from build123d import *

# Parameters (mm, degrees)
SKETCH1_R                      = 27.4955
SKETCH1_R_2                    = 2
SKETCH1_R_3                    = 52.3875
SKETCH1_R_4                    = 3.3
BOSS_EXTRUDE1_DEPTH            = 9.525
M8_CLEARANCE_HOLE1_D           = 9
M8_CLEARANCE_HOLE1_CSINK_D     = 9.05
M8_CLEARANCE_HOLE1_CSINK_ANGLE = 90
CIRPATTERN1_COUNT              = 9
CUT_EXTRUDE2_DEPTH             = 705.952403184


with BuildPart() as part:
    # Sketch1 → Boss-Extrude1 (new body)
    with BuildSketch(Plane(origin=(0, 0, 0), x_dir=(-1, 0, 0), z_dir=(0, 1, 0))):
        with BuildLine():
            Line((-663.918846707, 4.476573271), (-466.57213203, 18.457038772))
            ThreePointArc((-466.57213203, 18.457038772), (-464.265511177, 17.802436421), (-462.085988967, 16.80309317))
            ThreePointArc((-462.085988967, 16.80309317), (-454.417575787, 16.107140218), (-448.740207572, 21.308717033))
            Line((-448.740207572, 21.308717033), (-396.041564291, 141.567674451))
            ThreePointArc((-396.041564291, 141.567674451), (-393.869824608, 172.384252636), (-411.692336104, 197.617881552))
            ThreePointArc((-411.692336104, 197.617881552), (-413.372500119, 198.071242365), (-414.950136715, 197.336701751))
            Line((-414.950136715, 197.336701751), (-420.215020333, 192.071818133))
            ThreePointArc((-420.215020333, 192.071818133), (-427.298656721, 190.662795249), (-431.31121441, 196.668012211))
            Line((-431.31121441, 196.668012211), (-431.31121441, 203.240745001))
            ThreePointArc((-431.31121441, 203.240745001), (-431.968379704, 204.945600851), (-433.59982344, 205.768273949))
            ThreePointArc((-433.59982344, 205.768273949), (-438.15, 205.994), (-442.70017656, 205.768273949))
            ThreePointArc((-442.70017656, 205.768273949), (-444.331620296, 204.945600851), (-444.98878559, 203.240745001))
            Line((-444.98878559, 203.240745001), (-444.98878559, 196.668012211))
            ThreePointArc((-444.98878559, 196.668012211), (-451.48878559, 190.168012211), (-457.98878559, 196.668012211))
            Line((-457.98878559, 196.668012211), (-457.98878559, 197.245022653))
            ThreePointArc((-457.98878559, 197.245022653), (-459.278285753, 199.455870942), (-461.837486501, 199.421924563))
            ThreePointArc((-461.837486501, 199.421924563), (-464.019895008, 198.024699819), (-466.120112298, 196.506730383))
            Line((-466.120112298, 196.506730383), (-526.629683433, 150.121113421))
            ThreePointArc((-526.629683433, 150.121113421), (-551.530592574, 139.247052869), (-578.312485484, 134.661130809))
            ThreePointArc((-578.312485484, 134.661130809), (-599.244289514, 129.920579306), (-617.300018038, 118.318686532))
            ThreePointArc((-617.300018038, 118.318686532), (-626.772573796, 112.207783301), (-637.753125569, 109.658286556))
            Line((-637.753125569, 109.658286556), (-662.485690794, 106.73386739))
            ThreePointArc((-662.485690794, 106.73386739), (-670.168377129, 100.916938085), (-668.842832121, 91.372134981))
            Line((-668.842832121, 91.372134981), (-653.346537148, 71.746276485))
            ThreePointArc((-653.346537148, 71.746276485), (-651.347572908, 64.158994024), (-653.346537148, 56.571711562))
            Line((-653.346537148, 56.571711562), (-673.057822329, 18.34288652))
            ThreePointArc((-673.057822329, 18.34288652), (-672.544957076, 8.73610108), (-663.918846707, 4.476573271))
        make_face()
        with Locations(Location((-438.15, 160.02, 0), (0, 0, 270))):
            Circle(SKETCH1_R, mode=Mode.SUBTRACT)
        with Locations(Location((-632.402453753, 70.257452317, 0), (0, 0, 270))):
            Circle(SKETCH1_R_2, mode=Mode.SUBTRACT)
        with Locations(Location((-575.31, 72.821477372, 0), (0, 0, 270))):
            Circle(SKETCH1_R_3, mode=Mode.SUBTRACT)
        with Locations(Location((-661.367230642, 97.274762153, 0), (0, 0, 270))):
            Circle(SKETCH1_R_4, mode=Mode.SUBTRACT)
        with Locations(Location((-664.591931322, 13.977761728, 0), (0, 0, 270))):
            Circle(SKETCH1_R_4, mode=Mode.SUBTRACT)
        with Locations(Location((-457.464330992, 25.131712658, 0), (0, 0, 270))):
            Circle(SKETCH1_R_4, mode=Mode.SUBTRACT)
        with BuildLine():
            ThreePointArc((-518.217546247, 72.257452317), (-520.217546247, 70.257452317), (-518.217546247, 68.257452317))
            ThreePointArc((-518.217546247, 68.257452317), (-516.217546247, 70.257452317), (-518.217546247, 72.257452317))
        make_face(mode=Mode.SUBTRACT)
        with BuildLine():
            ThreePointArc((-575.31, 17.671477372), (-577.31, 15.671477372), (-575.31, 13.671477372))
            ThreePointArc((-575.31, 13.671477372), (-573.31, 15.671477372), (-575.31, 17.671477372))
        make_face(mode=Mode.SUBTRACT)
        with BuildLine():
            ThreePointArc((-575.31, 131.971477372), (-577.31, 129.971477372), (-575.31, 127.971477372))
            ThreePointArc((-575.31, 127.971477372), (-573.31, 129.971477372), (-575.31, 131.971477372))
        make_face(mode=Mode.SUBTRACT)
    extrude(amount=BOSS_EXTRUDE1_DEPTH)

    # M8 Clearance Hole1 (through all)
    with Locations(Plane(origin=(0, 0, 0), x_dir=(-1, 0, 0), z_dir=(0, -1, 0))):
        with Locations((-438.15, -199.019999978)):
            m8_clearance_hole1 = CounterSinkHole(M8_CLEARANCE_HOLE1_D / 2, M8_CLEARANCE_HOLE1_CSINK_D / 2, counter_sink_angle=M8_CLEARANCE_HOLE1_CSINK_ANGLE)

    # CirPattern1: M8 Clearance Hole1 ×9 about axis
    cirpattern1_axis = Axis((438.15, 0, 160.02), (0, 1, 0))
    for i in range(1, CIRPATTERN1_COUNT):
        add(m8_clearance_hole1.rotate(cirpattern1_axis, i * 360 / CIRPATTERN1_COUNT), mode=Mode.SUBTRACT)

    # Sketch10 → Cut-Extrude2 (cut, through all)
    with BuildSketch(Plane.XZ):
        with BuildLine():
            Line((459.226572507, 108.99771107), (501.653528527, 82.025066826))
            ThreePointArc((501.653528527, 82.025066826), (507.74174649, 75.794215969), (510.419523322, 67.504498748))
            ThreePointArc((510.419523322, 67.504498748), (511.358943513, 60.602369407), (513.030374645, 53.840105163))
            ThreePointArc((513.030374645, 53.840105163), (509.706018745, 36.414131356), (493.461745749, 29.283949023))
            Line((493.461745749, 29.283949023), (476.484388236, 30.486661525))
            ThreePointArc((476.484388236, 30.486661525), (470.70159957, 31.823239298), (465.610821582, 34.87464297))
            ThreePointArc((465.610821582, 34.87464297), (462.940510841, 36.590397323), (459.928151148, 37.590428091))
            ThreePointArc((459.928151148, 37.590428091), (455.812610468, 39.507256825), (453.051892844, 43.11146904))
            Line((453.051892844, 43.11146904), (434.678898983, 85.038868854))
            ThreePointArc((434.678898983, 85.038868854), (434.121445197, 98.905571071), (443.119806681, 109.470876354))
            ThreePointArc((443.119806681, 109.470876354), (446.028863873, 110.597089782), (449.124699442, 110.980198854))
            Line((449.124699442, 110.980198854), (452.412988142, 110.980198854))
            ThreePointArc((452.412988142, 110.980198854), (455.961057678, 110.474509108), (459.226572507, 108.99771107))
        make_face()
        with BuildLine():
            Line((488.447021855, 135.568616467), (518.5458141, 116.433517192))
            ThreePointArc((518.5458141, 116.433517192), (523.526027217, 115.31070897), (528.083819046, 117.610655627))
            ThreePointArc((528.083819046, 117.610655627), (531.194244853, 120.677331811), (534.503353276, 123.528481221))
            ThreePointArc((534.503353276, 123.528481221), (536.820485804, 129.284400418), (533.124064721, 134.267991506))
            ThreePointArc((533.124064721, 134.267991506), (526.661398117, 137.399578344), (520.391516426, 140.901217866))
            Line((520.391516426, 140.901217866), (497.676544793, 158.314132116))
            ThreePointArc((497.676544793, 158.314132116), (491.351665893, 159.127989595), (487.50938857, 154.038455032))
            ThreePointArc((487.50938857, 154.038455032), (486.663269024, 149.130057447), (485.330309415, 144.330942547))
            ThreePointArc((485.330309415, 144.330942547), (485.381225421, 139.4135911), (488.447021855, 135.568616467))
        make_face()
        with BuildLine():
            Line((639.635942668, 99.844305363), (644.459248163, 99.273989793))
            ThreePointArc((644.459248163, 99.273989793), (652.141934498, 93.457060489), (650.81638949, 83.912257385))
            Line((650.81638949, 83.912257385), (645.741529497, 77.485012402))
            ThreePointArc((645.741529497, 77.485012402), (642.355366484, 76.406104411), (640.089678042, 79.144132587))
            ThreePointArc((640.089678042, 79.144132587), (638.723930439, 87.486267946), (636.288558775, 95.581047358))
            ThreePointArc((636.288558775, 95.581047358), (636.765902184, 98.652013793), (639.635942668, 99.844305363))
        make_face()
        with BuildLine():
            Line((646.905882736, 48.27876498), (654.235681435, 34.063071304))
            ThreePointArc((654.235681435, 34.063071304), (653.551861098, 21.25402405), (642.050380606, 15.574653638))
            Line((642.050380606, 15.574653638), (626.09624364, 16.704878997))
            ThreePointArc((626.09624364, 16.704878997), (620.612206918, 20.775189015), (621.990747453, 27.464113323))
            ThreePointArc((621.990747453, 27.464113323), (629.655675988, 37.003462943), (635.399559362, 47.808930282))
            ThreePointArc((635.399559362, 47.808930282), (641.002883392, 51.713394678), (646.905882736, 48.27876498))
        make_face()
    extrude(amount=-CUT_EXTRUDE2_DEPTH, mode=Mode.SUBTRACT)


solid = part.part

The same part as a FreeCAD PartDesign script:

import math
import FreeCAD as App
import Part
import Sketcher
Q = App.Units.Quantity

doc = App.newDocument("Part")
body = doc.addObject("PartDesign::Body", "Body")

# Sketch on XZ plane
sketch1 = body.newObject("Sketcher::SketchObject", "Sketch")
sketch1.AttachmentSupport = (doc.getObject("XZ_Plane"), [""])
sketch1.MapMode = "FlatFace"
sketch1.addGeometry([
    Part.LineSegment(App.Vector(663.918847, 4.476573, 0), App.Vector(466.572132, 18.457039, 0)),  # 0
    Part.ArcOfCircle(Part.Circle(App.Vector(469.67802, 3.12161, 0), App.Vector(0, 0, 1), 15.646787), math.radians(101.44926), math.radians(119.026457)),  # 1
    Part.ArcOfCircle(Part.Circle(App.Vector(457.464331, 25.131713, 0), App.Vector(0, 0, 1), 9.525), math.radians(-156.3365), math.radians(-60.973543)),  # 2
    Part.LineSegment(App.Vector(448.740208, 21.308717, 0), App.Vector(396.041564, 141.567674, 0)),  # 3
    Part.ArcOfCircle(Part.Circle(App.Vector(438.15, 160.02, 0), App.Vector(0, 0, 1), 45.974), math.radians(125.134086), math.radians(203.6635)),  # 4
    Part.ArcOfCircle(Part.Circle(App.Vector(413.154085, 195.540651, 0), App.Vector(0, 0, 1), 2.54), math.radians(45), math.radians(125.134086)),  # 5
    Part.LineSegment(App.Vector(414.950137, 197.336702, 0), App.Vector(420.21502, 192.071818, 0)),  # 6
    Part.ArcOfCircle(Part.Circle(App.Vector(424.811214, 196.668012, 0), App.Vector(0, 0, 1), 6.5), math.radians(-135), math.radians(0)),  # 7
    Part.LineSegment(App.Vector(431.311214, 196.668012, 0), App.Vector(431.311214, 203.240745, 0)),  # 8
    Part.ArcOfCircle(Part.Circle(App.Vector(433.851214, 203.240745, 0), App.Vector(0, 0, 1), 2.54), math.radians(95.680024), math.radians(180)),  # 9
    Part.ArcOfCircle(Part.Circle(App.Vector(438.15, 160.02, 0), App.Vector(0, 0, 1), 45.974), math.radians(84.319976), math.radians(95.680024)),  # 10
    Part.ArcOfCircle(Part.Circle(App.Vector(442.448786, 203.240745, 0), App.Vector(0, 0, 1), 2.54), math.radians(0), math.radians(84.319976)),  # 11
    Part.LineSegment(App.Vector(444.988786, 203.240745, 0), App.Vector(444.988786, 196.668012, 0)),  # 12
    Part.ArcOfCircle(Part.Circle(App.Vector(451.488786, 196.668012, 0), App.Vector(0, 0, 1), 6.5), math.radians(180), math.radians(360)),  # 13
    Part.LineSegment(App.Vector(457.988786, 196.668012, 0), App.Vector(457.988786, 197.245023, 0)),  # 14
    Part.ArcOfCircle(Part.Circle(App.Vector(460.528786, 197.245023, 0), App.Vector(0, 0, 1), 2.54), math.radians(58.98673), math.radians(180)),  # 15
    Part.ArcOfCircle(Part.Circle(App.Vector(438.15, 160.02, 0), App.Vector(0, 0, 1), 45.974), math.radians(52.526835), math.radians(58.98673)),  # 16
    Part.LineSegment(App.Vector(466.120112, 196.50673, 0), App.Vector(526.629683, 150.121113, 0)),  # 17
    Part.ArcOfCircle(Part.Circle(App.Vector(583.767602, 247.015541, 0), App.Vector(0, 0, 1), 112.486763), math.radians(-120.527534), math.radians(-92.779685)),  # 18
    Part.ArcOfCircle(Part.Circle(App.Vector(575.31, 72.821477, 0), App.Vector(0, 0, 1), 61.9125), math.radians(47.295646), math.radians(87.220315)),  # 19
    Part.ArcOfCircle(Part.Circle(App.Vector(639.583712, 142.463612, 0), App.Vector(0, 0, 1), 32.856361), math.radians(-132.704354), math.radians(-93.193878)),  # 20
    Part.LineSegment(App.Vector(637.753126, 109.658287, 0), App.Vector(662.485691, 106.733867, 0)),  # 21
    Part.ArcOfCircle(Part.Circle(App.Vector(661.367231, 97.274762, 0), App.Vector(0, 0, 1), 9.525), math.radians(-38.294113), math.radians(83.256563)),  # 22
    Part.LineSegment(App.Vector(668.842832, 91.372135, 0), App.Vector(653.346537, 71.746276, 0)),  # 23
    Part.ArcOfCircle(Part.Circle(App.Vector(666.746226, 64.158994, 0), App.Vector(0, 0, 1), 15.398653), math.radians(150.480235), math.radians(209.519765)),  # 24
    Part.LineSegment(App.Vector(653.346537, 56.571712, 0), App.Vector(673.057822, 18.342887, 0)),  # 25
    Part.ArcOfCircle(Part.Circle(App.Vector(664.591931, 13.977762, 0), App.Vector(0, 0, 1), 9.525), math.radians(-94.052186), math.radians(27.276227)),  # 26
    Part.Circle(App.Vector(664.591931, 13.977762, 0), App.Vector(0, 0, 1), 3.3),  # 27
    Part.Circle(App.Vector(575.31, 15.671477, 0), App.Vector(0, 0, 1), 2),  # 28
    Part.Circle(App.Vector(632.402454, 70.257452, 0), App.Vector(0, 0, 1), 2),  # 29
    Part.Circle(App.Vector(661.367231, 97.274762, 0), App.Vector(0, 0, 1), 3.3),  # 30
    Part.Circle(App.Vector(575.31, 72.821477, 0), App.Vector(0, 0, 1), 52.3875),  # 31
    Part.Circle(App.Vector(457.464331, 25.131713, 0), App.Vector(0, 0, 1), 3.3),  # 32
    Part.Circle(App.Vector(518.217546, 70.257452, 0), App.Vector(0, 0, 1), 2),  # 33
    Part.Circle(App.Vector(575.31, 129.971477, 0), App.Vector(0, 0, 1), 2),  # 34
    Part.Circle(App.Vector(438.15, 160.02, 0), App.Vector(0, 0, 1), 27.4955),  # 35
], False)
sketch1.addConstraint([
    Sketcher.Constraint("Coincident", 0, 2, 1, 1),
    Sketcher.Constraint("Coincident", 1, 2, 2, 2),
    Sketcher.Constraint("Coincident", 2, 1, 3, 1),
    Sketcher.Constraint("Coincident", 3, 2, 4, 2),
    Sketcher.Constraint("Coincident", 4, 1, 5, 2),
    Sketcher.Constraint("Coincident", 5, 1, 6, 1),
    Sketcher.Constraint("Coincident", 6, 2, 7, 1),
    Sketcher.Constraint("Coincident", 7, 2, 8, 1),
    Sketcher.Constraint("Coincident", 8, 2, 9, 2),
    Sketcher.Constraint("Coincident", 9, 1, 10, 2),
    Sketcher.Constraint("Coincident", 10, 1, 11, 2),
    Sketcher.Constraint("Coincident", 11, 1, 12, 1),
    Sketcher.Constraint("Coincident", 12, 2, 13, 1),
    Sketcher.Constraint("Coincident", 13, 2, 14, 1),
    Sketcher.Constraint("Coincident", 14, 2, 15, 2),
    Sketcher.Constraint("Coincident", 15, 1, 16, 2),
    Sketcher.Constraint("Coincident", 16, 1, 17, 1),
    Sketcher.Constraint("Coincident", 17, 2, 18, 1),
    Sketcher.Constraint("Coincident", 18, 2, 19, 2),
    Sketcher.Constraint("Coincident", 19, 1, 20, 1),
    Sketcher.Constraint("Coincident", 20, 2, 21, 1),
    Sketcher.Constraint("Coincident", 21, 2, 22, 2),
    Sketcher.Constraint("Coincident", 22, 1, 23, 1),
    Sketcher.Constraint("Coincident", 23, 2, 24, 1),
    Sketcher.Constraint("Coincident", 24, 2, 25, 1),
    Sketcher.Constraint("Coincident", 25, 2, 26, 2),
    Sketcher.Constraint("Coincident", 26, 1, 0, 1),
    Sketcher.Constraint("Vertical", 8),
    Sketcher.Constraint("Vertical", 12),
    Sketcher.Constraint("Vertical", 14),
    Sketcher.Constraint("Coincident", 10, 3, 4, 3),
    Sketcher.Constraint("Coincident", 16, 3, 4, 3),
    Sketcher.Constraint("Coincident", 27, 3, 26, 3),
    Sketcher.Constraint("Coincident", 30, 3, 22, 3),
    Sketcher.Constraint("Coincident", 31, 3, 19, 3),
    Sketcher.Constraint("Coincident", 32, 3, 2, 3),
    Sketcher.Constraint("Coincident", 35, 3, 4, 3),
    Sketcher.Constraint("Radius", 5, Q("0.1 in")),
    Sketcher.Constraint("Radius", 9, Q("0.1 in")),
    Sketcher.Constraint("Radius", 11, Q("0.1 in")),
    Sketcher.Constraint("Radius", 15, Q("0.1 in")),
    Sketcher.Constraint("Radius", 4, Q("1.81 in")),
    Sketcher.Constraint("Radius", 10, Q("1.81 in")),
    Sketcher.Constraint("Radius", 16, Q("1.81 in")),
    Sketcher.Constraint("Diameter", 31, Q("4.125 in")),
    Sketcher.Constraint("Diameter", 35, Q("2.165 in")),
    Sketcher.Constraint("Radius", 2, Q("0.375 in")),
    Sketcher.Constraint("Radius", 19, Q("2.4375 in")),
    Sketcher.Constraint("Radius", 22, Q("0.375 in")),
    Sketcher.Constraint("Radius", 26, Q("0.375 in")),
    Sketcher.Constraint("DistanceY", -1, 1, 4, 3, Q("6.3 in")),
    Sketcher.Constraint("DistanceX", 10, 3, 19, 3, Q("5.4 in")),
    Sketcher.Constraint("Diameter", 27, Q("6.6 mm")),
    Sketcher.Constraint("Diameter", 28, Q("4 mm")),
    Sketcher.Constraint("Diameter", 29, Q("4 mm")),
    Sketcher.Constraint("Diameter", 30, Q("6.6 mm")),
    Sketcher.Constraint("Diameter", 32, Q("6.6 mm")),
    Sketcher.Constraint("Diameter", 33, Q("4 mm")),
    Sketcher.Constraint("Diameter", 34, Q("4 mm")),
    Sketcher.Constraint("DistanceX", -1, 1, 4, 3, Q("17.25 in")),
    Sketcher.Constraint("DistanceX", -1, 1, 28, 3, Q("22.65 in")),
    Sketcher.Constraint("DistanceX", -1, 1, 34, 3, Q("22.65 in")),
    Sketcher.Constraint("Radius", 7, Q("6.5 mm")),
    Sketcher.Constraint("Radius", 13, Q("6.5 mm")),
    Sketcher.Constraint("DistanceY", 28, 3, 19, 3, Q("2.25 in")),
    Sketcher.Constraint("DistanceY", 31, 3, 34, 3, Q("2.25 in")),
    Sketcher.Constraint("Radius", 20, Q("32.856361 mm")),
    Sketcher.Constraint("Radius", 1, Q("15.646787 mm")),
    Sketcher.Constraint("Radius", 18, Q("112.486763 mm")),
    Sketcher.Constraint("Radius", 24, Q("15.398653 mm")),
    Sketcher.Constraint("Distance", 0, Q("197.841298 mm")),
    Sketcher.Constraint("DistanceY", 14, 1, 14, 2, Q("0.57701 mm")),
    Sketcher.Constraint("DistanceX", -1, 1, 18, 3, Q("583.767602 mm")),
    Sketcher.Constraint("DistanceY", -1, 1, 5, 1, Q("197.336702 mm")),
    Sketcher.Constraint("DistanceY", 2, 3, 7, 3, Q("171.5363 mm")),
    Sketcher.Constraint("DistanceX", 5, 3, 11, 3, Q("29.2947 mm")),
    Sketcher.Constraint("DistanceY", 20, 3, 13, 3, Q("54.2044 mm")),
    Sketcher.Constraint("DistanceX", 2, 3, 22, 3, Q("203.9029 mm")),
    Sketcher.Constraint("DistanceX", 22, 3, 26, 3, Q("3.224701 mm")),
    Sketcher.Constraint("DistanceY", 26, 3, 22, 3, Q("83.297 mm")),
    Sketcher.Constraint("DistanceX", 2, 3, 0, 2, Q("9.107801 mm")),
    Sketcher.Constraint("DistanceX", 4, 1, 5, 1, Q("3.257801 mm")),
    Sketcher.Constraint("DistanceX", 15, 3, 15, 1, Q("1.308701 mm")),
    Sketcher.Constraint("DistanceY", 14, 2, 15, 1, Q("2.176902 mm")),
    Sketcher.Constraint("DistanceY", 20, 2, 19, 1, Q("8.6604 mm")),
    Sketcher.Constraint("DistanceX", 22, 3, 22, 1, Q("7.475601 mm")),
    Sketcher.Constraint("Distance", 6, Q("7.44567 mm")),
    Sketcher.Constraint("Distance", 21, Q("24.904859 mm")),
    Sketcher.Constraint("Distance", 23, Q("25.006189 mm")),
    Sketcher.Constraint("Distance", 25, Q("43.011369 mm")),
    Sketcher.Constraint("DistanceY", 8, 1, 8, 2, Q("6.572733 mm")),
    Sketcher.Constraint("DistanceY", 12, 2, 12, 1, Q("6.572733 mm")),
    Sketcher.Constraint("DistanceX", -1, 1, 1, 3, Q("469.67802 mm")),
    Sketcher.Constraint("DistanceY", -1, 1, 1, 3, Q("3.12161 mm")),
    Sketcher.Constraint("DistanceX", -1, 1, 2, 3, Q("457.464331 mm")),
    Sketcher.Constraint("DistanceY", -1, 1, 5, 3, Q("195.540651 mm")),
    Sketcher.Constraint("DistanceY", -1, 1, 18, 3, Q("247.015541 mm")),
    Sketcher.Constraint("DistanceX", -1, 1, 20, 3, Q("639.583712 mm")),
    Sketcher.Constraint("DistanceY", -1, 1, 26, 3, Q("13.977762 mm")),
    Sketcher.Constraint("DistanceX", -1, 1, 1, 2, Q("462.085989 mm")),
    Sketcher.Constraint("DistanceX", -1, 1, 6, 2, Q("420.21502 mm")),
    Sketcher.Constraint("DistanceY", -1, 1, 16, 1, Q("196.50673 mm")),
    Sketcher.Constraint("DistanceY", -1, 1, 18, 2, Q("134.661131 mm")),
    Sketcher.Constraint("DistanceX", -1, 1, 21, 2, Q("662.485691 mm")),
    Sketcher.Constraint("DistanceY", -1, 1, 24, 2, Q("56.571712 mm")),
    Sketcher.Constraint("DistanceY", 24, 3, 22, 3, Q("33.115768 mm")),
    Sketcher.Constraint("DistanceY", 24, 3, 29, 3, Q("6.098458 mm")),
    Sketcher.Constraint("DistanceY", 2, 3, 33, 3, Q("45.12574 mm")),
    Sketcher.Constraint("DistanceX", 2, 1, 1, 2, Q("13.345781 mm")),
    Sketcher.Constraint("DistanceX", 3, 2, 5, 3, Q("17.112521 mm")),
    Sketcher.Constraint("DistanceY", 7, 2, 5, 1, Q("0.66869 mm")),
    Sketcher.Constraint("DistanceX", 9, 1, 9, 3, Q("0.251391 mm")),
    Sketcher.Constraint("DistanceX", 11, 3, 10, 1, Q("0.251391 mm")),
    Sketcher.Constraint("DistanceY", 11, 1, 10, 1, Q("2.527529 mm")),
    Sketcher.Constraint("DistanceX", 16, 1, 17, 2, Q("60.509571 mm")),
    Sketcher.Constraint("DistanceX", 29, 3, 20, 2, Q("5.350672 mm")),
    Sketcher.Constraint("DistanceX", 23, 2, 24, 3, Q("13.399689 mm")),
    Sketcher.Constraint("DistanceX", -1, 1, 33, 3, Q("518.217546 mm")),
])
pad1 = body.newObject("PartDesign::Pad", "Pad")
pad1.Profile = sketch1
pad1.Length = Q("0.375 in")
pad1.Reversed = True

# Sketch on XZ plane
sketch2 = body.newObject("Sketcher::SketchObject", "Sketch001")
sketch2.AttachmentSupport = (doc.getObject("XZ_Plane"), [""])
sketch2.MapMode = "FlatFace"
sketch2.addGeometry(Part.Circle(App.Vector(438.1, 199, 0), App.Vector(0, 0, 1), 4.5), False)
sketch2.addConstraint([
    Sketcher.Constraint("Diameter", 0, Q("9 mm")),
    Sketcher.Constraint("DistanceX", -1, 1, 0, 3, Q("17.25 in")),
    Sketcher.Constraint("DistanceY", -1, 1, 0, 3, Q("199.02 mm")),
])
doc.recompute()
hole = body.newObject("PartDesign::Hole", "Hole")
hole.Profile = sketch2
hole.ThreadType = "None"
hole.Diameter = 9
hole.DepthType = "ThroughAll"
hole.HoleCutType = "Countersink"
hole.HoleCutDiameter = 9.05
hole.HoleCutCountersinkAngle = 90
doc.recompute()

datumline = body.newObject("PartDesign::Line", "DatumLine")
datumline.Placement = App.Placement(App.Vector(438.15, 0, 160.02), App.Rotation(App.Vector(0, 0, 1), App.Vector(0, 1, 0)))
polarpattern = body.newObject("PartDesign::PolarPattern", "PolarPattern")
polarpattern.Originals = [hole]
polarpattern.Axis = (datumline, [""])
polarpattern.Angle = 360
polarpattern.Occurrences = 9
body.Tip = polarpattern

# Sketch on XZ plane
sketch3 = body.newObject("Sketcher::SketchObject", "Sketch002")
sketch3.AttachmentSupport = (doc.getObject("XZ_Plane"), [""])
sketch3.MapMode = "FlatFace"
sketch3.addGeometry([
    Part.LineSegment(App.Vector(501.653529, 82.025067, 0), App.Vector(459.226573, 108.997711, 0)),  # 0
    Part.ArcOfCircle(Part.Circle(App.Vector(452.412988, 98.280199, 0), App.Vector(0, 0, 1), 12.7), math.radians(57.554121), math.radians(90)),  # 1
    Part.LineSegment(App.Vector(452.412988, 110.980199, 0), App.Vector(449.124699, 110.980199, 0)),  # 2
    Part.ArcOfCircle(Part.Circle(App.Vector(449.124699, 98.280199, 0), App.Vector(0, 0, 1), 12.7), math.radians(90), math.radians(118.217908)),  # 3
    Part.ArcOfCircle(Part.Circle(App.Vector(452.127146, 92.68486, 0), App.Vector(0, 0, 1), 19.05), math.radians(118.217908), math.radians(203.6635)),  # 4
    Part.LineSegment(App.Vector(434.678899, 85.038869, 0), App.Vector(453.051893, 43.111469, 0)),  # 5
    Part.ArcOfCircle(Part.Circle(App.Vector(461.776016, 46.934465, 0), App.Vector(0, 0, 1), 9.525), math.radians(-156.3365), math.radians(-101.186405)),  # 6
    Part.ArcOfCircle(Part.Circle(App.Vector(457.464331, 25.131713, 0), App.Vector(0, 0, 1), 12.7), math.radians(50.099528), math.radians(78.813595)),  # 7
    Part.ArcOfCircle(Part.Circle(App.Vector(477.830557, 49.489038, 0), App.Vector(0, 0, 1), 19.05), math.radians(-129.900472), math.radians(-94.052186)),  # 8
    Part.LineSegment(App.Vector(476.484388, 30.486662, 0), App.Vector(493.461746, 29.283949, 0)),  # 9
    Part.ArcOfCircle(Part.Circle(App.Vector(494.807915, 48.286326, 0), App.Vector(0, 0, 1), 19.05), math.radians(-94.052186), math.radians(16.949994)),  # 10
    Part.ArcOfCircle(Part.Circle(App.Vector(575.31, 72.821477, 0), App.Vector(0, 0, 1), 65.107943), math.radians(-175.315778), math.radians(-163.050006)),  # 11
    Part.ArcOfCircle(Part.Circle(App.Vector(491.433152, 65.948799, 0), App.Vector(0, 0, 1), 19.05), math.radians(4.684222), math.radians(57.554121)),  # 12
    Part.LineSegment(App.Vector(488.447022, 135.568616, 0), App.Vector(518.545814, 116.433517, 0)),  # 13
    Part.ArcOfCircle(Part.Circle(App.Vector(522.600355, 122.811158, 0), App.Vector(0, 0, 1), 7.557354), math.radians(-122.445879), math.radians(-43.482891)),  # 14
    Part.ArcOfCircle(Part.Circle(App.Vector(575.31, 72.821477, 0), App.Vector(0, 0, 1), 65.0875), math.radians(128.825499), math.radians(136.517109)),  # 15
    Part.ArcOfCircle(Part.Circle(App.Vector(530.522217, 128.475506, 0), App.Vector(0, 0, 1), 6.35), math.radians(-51.174501), math.radians(65.81151)),  # 16
    Part.ArcOfCircle(Part.Circle(App.Vector(583.767602, 247.015541, 0), App.Vector(0, 0, 1), 123.599263), math.radians(-120.847484), math.radians(-114.18849)),  # 17
    Part.LineSegment(App.Vector(520.391516, 140.901218, 0), App.Vector(497.676545, 158.314132, 0)),  # 18
    Part.ArcOfCircle(Part.Circle(App.Vector(493.81327, 153.274528, 0), App.Vector(0, 0, 1), 6.35), math.radians(52.526835), math.radians(173.090387)),  # 19
    Part.ArcOfCircle(Part.Circle(App.Vector(438.15, 160.02, 0), App.Vector(0, 0, 1), 49.7205), math.radians(-18.393721), math.radians(-6.909613)),  # 20
    Part.ArcOfCircle(Part.Circle(App.Vector(492.501563, 141.946257, 0), App.Vector(0, 0, 1), 7.557354), math.radians(161.606279), math.radians(237.554121)),  # 21
    Part.LineSegment(App.Vector(644.459248, 99.27399, 0), App.Vector(639.635943, 99.844305, 0)),  # 22
    Part.ArcOfCircle(Part.Circle(App.Vector(639.263123, 96.69127, 0), App.Vector(0, 0, 1), 3.175), math.radians(83.256563), math.radians(200.46753)),  # 23
    Part.ArcOfCircle(Part.Circle(App.Vector(575.31, 72.821477, 0), App.Vector(0, 0, 1), 65.0875), math.radians(5.574552), math.radians(20.46753)),  # 24
    Part.ArcOfCircle(Part.Circle(App.Vector(643.249662, 79.452555, 0), App.Vector(0, 0, 1), 3.175), math.radians(-174.425448), math.radians(-38.294113)),  # 25
    Part.LineSegment(App.Vector(645.741529, 77.485012, 0), App.Vector(650.816389, 83.912257, 0)),  # 26
    Part.ArcOfCircle(Part.Circle(App.Vector(643.340788, 89.814885, 0), App.Vector(0, 0, 1), 9.525), math.radians(-38.294113), math.radians(83.256563)),  # 27
    Part.LineSegment(App.Vector(654.235681, 34.063071, 0), App.Vector(646.905883, 48.278765, 0)),  # 28
    Part.ArcOfCircle(Part.Circle(App.Vector(641.261955, 45.368682, 0), App.Vector(0, 0, 1), 6.35), math.radians(27.276227), math.radians(157.400262)),  # 29
    Part.ArcOfCircle(Part.Circle(App.Vector(575.31, 72.821477, 0), App.Vector(0, 0, 1), 65.0875), math.radians(-44.176221), math.radians(-22.599738)),  # 30
    Part.ArcOfCircle(Part.Circle(App.Vector(626.544967, 23.039005, 0), App.Vector(0, 0, 1), 6.35), math.radians(135.823779), math.radians(265.947814)),  # 31
    Part.LineSegment(App.Vector(626.096244, 16.704879, 0), App.Vector(642.050381, 15.574654, 0)),  # 32
    Part.ArcOfCircle(Part.Circle(App.Vector(642.947827, 28.242905, 0), App.Vector(0, 0, 1), 12.7), math.radians(-94.052186), math.radians(27.276227)),  # 33
], False)
sketch3.addConstraint([
    Sketcher.Constraint("Coincident", 0, 2, 1, 1),
    Sketcher.Constraint("Coincident", 1, 2, 2, 1),
    Sketcher.Constraint("Coincident", 2, 2, 3, 1),
    Sketcher.Constraint("Coincident", 3, 2, 4, 1),
    Sketcher.Constraint("Coincident", 4, 2, 5, 1),
    Sketcher.Constraint("Coincident", 5, 2, 6, 1),
    Sketcher.Constraint("Coincident", 6, 2, 7, 2),
    Sketcher.Constraint("Coincident", 7, 1, 8, 1),
    Sketcher.Constraint("Coincident", 8, 2, 9, 1),
    Sketcher.Constraint("Coincident", 9, 2, 10, 1),
    Sketcher.Constraint("Coincident", 10, 2, 11, 2),
    Sketcher.Constraint("Coincident", 11, 1, 12, 1),
    Sketcher.Constraint("Coincident", 12, 2, 0, 1),
    Sketcher.Constraint("Coincident", 13, 2, 14, 1),
    Sketcher.Constraint("Coincident", 14, 2, 15, 2),
    Sketcher.Constraint("Coincident", 15, 1, 16, 1),
    Sketcher.Constraint("Coincident", 16, 2, 17, 2),
    Sketcher.Constraint("Coincident", 17, 1, 18, 1),
    Sketcher.Constraint("Coincident", 18, 2, 19, 1),
    Sketcher.Constraint("Coincident", 19, 2, 20, 2),
    Sketcher.Constraint("Coincident", 20, 1, 21, 1),
    Sketcher.Constraint("Coincident", 21, 2, 13, 1),
    Sketcher.Constraint("Coincident", 22, 2, 23, 1),
    Sketcher.Constraint("Coincident", 23, 2, 24, 2),
    Sketcher.Constraint("Coincident", 24, 1, 25, 1),
    Sketcher.Constraint("Coincident", 25, 2, 26, 1),
    Sketcher.Constraint("Coincident", 26, 2, 27, 1),
    Sketcher.Constraint("Coincident", 27, 2, 22, 1),
    Sketcher.Constraint("Coincident", 28, 2, 29, 1),
    Sketcher.Constraint("Coincident", 29, 2, 30, 2),
    Sketcher.Constraint("Coincident", 30, 1, 31, 1),
    Sketcher.Constraint("Coincident", 31, 2, 32, 1),
    Sketcher.Constraint("Coincident", 32, 2, 33, 1),
    Sketcher.Constraint("Coincident", 33, 2, 28, 1),
    Sketcher.Constraint("Horizontal", 2),
    Sketcher.Constraint("Coincident", 15, 3, 11, 3),
    Sketcher.Constraint("Coincident", 24, 3, 11, 3),
    Sketcher.Constraint("Coincident", 30, 3, 11, 3),
    Sketcher.Constraint("Radius", 1, Q("0.5 in")),
    Sketcher.Constraint("Radius", 3, Q("0.5 in")),
    Sketcher.Constraint("Radius", 7, Q("0.5 in")),
    Sketcher.Constraint("Radius", 33, Q("0.5 in")),
    Sketcher.Constraint("Radius", 4, Q("0.75 in")),
    Sketcher.Constraint("Radius", 8, Q("0.75 in")),
    Sketcher.Constraint("Radius", 10, Q("0.75 in")),
    Sketcher.Constraint("Radius", 12, Q("0.75 in")),
    Sketcher.Constraint("Radius", 16, Q("0.25 in")),
    Sketcher.Constraint("Radius", 19, Q("0.25 in")),
    Sketcher.Constraint("Radius", 29, Q("0.25 in")),
    Sketcher.Constraint("Radius", 31, Q("0.25 in")),
    Sketcher.Constraint("Radius", 6, Q("0.375 in")),
    Sketcher.Constraint("Radius", 15, Q("2.5625 in")),
    Sketcher.Constraint("Radius", 23, Q("0.125 in")),
    Sketcher.Constraint("Radius", 24, Q("2.5625 in")),
    Sketcher.Constraint("Radius", 25, Q("0.125 in")),
    Sketcher.Constraint("Radius", 27, Q("0.375 in")),
    Sketcher.Constraint("Radius", 30, Q("2.5625 in")),
    Sketcher.Constraint("DistanceY", -1, 1, 20, 3, Q("6.3 in")),
    Sketcher.Constraint("Radius", 20, Q("1.9575 in")),
    Sketcher.Constraint("DistanceX", -1, 1, 11, 3, Q("22.65 in")),
    Sketcher.Constraint("DistanceX", -1, 1, 20, 3, Q("17.25 in")),
    Sketcher.Constraint("DistanceX", 14, 2, 16, 3, Q("0.0959999 in")),
    Sketcher.Constraint("Radius", 11, Q("65.107943 mm")),
    Sketcher.Constraint("Radius", 14, Q("7.557354 mm")),
    Sketcher.Constraint("Radius", 17, Q("123.599263 mm")),
    Sketcher.Constraint("Radius", 21, Q("7.557354 mm")),
    Sketcher.Constraint("DistanceX", 8, 3, 10, 3, Q("0.6683999 in")),
    Sketcher.Constraint("DistanceY", 8, 3, 11, 3, Q("0.9186 in")),
    Sketcher.Constraint("DistanceX", 8, 2, 9, 2, Q("0.6683999 in")),
    Sketcher.Constraint("DistanceX", 30, 1, 31, 3, Q("0.1793 in")),
    Sketcher.Constraint("DistanceX", 2, 2, 2, 1, Q("3.288289 mm")),
    Sketcher.Constraint("DistanceY", -1, 1, 1, 3, Q("98.280199 mm")),
    Sketcher.Constraint("DistanceX", -1, 1, 3, 3, Q("449.124699 mm")),
    Sketcher.Constraint("DistanceY", -1, 1, 12, 3, Q("65.948799 mm")),
    Sketcher.Constraint("DistanceX", -1, 1, 17, 3, Q("583.767602 mm")),
    Sketcher.Constraint("DistanceX", -1, 1, 2, 2, Q("449.124699 mm")),
    Sketcher.Constraint("DistanceX", -1, 1, 4, 2, Q("434.678899 mm")),
    Sketcher.Constraint("DistanceY", -1, 1, 11, 1, Q("67.504499 mm")),
    Sketcher.Constraint("DistanceX", 6, 3, 10, 3, Q("33.031899 mm")),
    Sketcher.Constraint("DistanceY", 14, 3, 21, 3, Q("19.135099 mm")),
    Sketcher.Constraint("DistanceY", 31, 3, 33, 3, Q("5.2039 mm")),
    Sketcher.Constraint("DistanceY", 14, 2, 21, 3, Q("24.335601 mm")),
    Sketcher.Constraint("DistanceX", 14, 3, 15, 1, Q("11.902998 mm")),
    Sketcher.Constraint("DistanceX", 17, 1, 16, 3, Q("10.130701 mm")),
    Sketcher.Constraint("DistanceY", 21, 3, 19, 2, Q("12.092198 mm")),
    Sketcher.Constraint("DistanceX", 27, 3, 26, 2, Q("7.475601 mm")),
    Sketcher.Constraint("DistanceX", 28, 2, 33, 2, Q("7.329799 mm")),
    Sketcher.Constraint("DistanceX", 32, 2, 33, 2, Q("12.185301 mm")),
    Sketcher.Constraint("Distance", 13, Q("35.666361 mm")),
    Sketcher.Constraint("Distance", 26, Q("8.189242 mm")),
    Sketcher.Constraint("Distance", 28, Q("15.994121 mm")),
    Sketcher.Constraint("Distance", 32, Q("15.994121 mm")),
    Sketcher.Constraint("DistanceX", -1, 1, 1, 3, Q("452.412988 mm")),
    Sketcher.Constraint("DistanceY", -1, 1, 4, 3, Q("92.68486 mm")),
    Sketcher.Constraint("DistanceX", -1, 1, 7, 3, Q("457.464331 mm")),
    Sketcher.Constraint("DistanceY", -1, 1, 8, 3, Q("49.489038 mm")),
    Sketcher.Constraint("DistanceY", -1, 1, 17, 3, Q("247.015541 mm")),
    Sketcher.Constraint("DistanceX", -1, 1, 19, 3, Q("493.81327 mm")),
    Sketcher.Constraint("DistanceY", -1, 1, 23, 3, Q("96.69127 mm")),
    Sketcher.Constraint("DistanceX", -1, 1, 27, 3, Q("643.340788 mm")),
    Sketcher.Constraint("DistanceY", -1, 1, 29, 3, Q("45.368682 mm")),
    Sketcher.Constraint("DistanceY", -1, 1, 0, 2, Q("108.997711 mm")),
    Sketcher.Constraint("DistanceY", -1, 1, 5, 2, Q("43.111469 mm")),
    Sketcher.Constraint("DistanceX", -1, 1, 6, 2, Q("459.928151 mm")),
    Sketcher.Constraint("DistanceY", -1, 1, 6, 2, Q("37.590428 mm")),
    Sketcher.Constraint("DistanceX", -1, 1, 7, 1, Q("465.610822 mm")),
    Sketcher.Constraint("DistanceX", -1, 1, 8, 2, Q("476.484388 mm")),
    Sketcher.Constraint("DistanceX", -1, 1, 12, 2, Q("501.653529 mm")),
    Sketcher.Constraint("DistanceY", -1, 1, 16, 2, Q("134.267992 mm")),
    Sketcher.Constraint("DistanceX", -1, 1, 20, 1, Q("485.330309 mm")),
    Sketcher.Constraint("DistanceX", -1, 1, 21, 2, Q("488.447022 mm")),
    Sketcher.Constraint("DistanceX", -1, 1, 23, 2, Q("636.288559 mm")),
    Sketcher.Constraint("DistanceX", -1, 1, 24, 1, Q("640.089678 mm")),
    Sketcher.Constraint("DistanceX", -1, 1, 25, 2, Q("645.741529 mm")),
    Sketcher.Constraint("DistanceX", -1, 1, 27, 2, Q("644.459248 mm")),
    Sketcher.Constraint("DistanceY", -1, 1, 27, 2, Q("99.27399 mm")),
    Sketcher.Constraint("DistanceX", -1, 1, 29, 2, Q("635.399559 mm")),
    Sketcher.Constraint("DistanceY", -1, 1, 31, 2, Q("16.704879 mm")),
    Sketcher.Constraint("DistanceX", -1, 1, 32, 2, Q("642.050381 mm")),
    Sketcher.Constraint("DistanceX", 3, 2, 1, 2, Q("9.293181 mm")),
    Sketcher.Constraint("DistanceX", 10, 3, 10, 2, Q("18.22246 mm")),
    Sketcher.Constraint("DistanceX", 18, 2, 17, 1, Q("22.714972 mm")),
    Sketcher.Constraint("DistanceX", 23, 3, 22, 2, Q("0.37282 mm")),
])
pocket1 = body.newObject("PartDesign::Pocket", "Pocket")
pocket1.Profile = sketch3
pocket1.Type = "ThroughAll"

doc.recompute()
